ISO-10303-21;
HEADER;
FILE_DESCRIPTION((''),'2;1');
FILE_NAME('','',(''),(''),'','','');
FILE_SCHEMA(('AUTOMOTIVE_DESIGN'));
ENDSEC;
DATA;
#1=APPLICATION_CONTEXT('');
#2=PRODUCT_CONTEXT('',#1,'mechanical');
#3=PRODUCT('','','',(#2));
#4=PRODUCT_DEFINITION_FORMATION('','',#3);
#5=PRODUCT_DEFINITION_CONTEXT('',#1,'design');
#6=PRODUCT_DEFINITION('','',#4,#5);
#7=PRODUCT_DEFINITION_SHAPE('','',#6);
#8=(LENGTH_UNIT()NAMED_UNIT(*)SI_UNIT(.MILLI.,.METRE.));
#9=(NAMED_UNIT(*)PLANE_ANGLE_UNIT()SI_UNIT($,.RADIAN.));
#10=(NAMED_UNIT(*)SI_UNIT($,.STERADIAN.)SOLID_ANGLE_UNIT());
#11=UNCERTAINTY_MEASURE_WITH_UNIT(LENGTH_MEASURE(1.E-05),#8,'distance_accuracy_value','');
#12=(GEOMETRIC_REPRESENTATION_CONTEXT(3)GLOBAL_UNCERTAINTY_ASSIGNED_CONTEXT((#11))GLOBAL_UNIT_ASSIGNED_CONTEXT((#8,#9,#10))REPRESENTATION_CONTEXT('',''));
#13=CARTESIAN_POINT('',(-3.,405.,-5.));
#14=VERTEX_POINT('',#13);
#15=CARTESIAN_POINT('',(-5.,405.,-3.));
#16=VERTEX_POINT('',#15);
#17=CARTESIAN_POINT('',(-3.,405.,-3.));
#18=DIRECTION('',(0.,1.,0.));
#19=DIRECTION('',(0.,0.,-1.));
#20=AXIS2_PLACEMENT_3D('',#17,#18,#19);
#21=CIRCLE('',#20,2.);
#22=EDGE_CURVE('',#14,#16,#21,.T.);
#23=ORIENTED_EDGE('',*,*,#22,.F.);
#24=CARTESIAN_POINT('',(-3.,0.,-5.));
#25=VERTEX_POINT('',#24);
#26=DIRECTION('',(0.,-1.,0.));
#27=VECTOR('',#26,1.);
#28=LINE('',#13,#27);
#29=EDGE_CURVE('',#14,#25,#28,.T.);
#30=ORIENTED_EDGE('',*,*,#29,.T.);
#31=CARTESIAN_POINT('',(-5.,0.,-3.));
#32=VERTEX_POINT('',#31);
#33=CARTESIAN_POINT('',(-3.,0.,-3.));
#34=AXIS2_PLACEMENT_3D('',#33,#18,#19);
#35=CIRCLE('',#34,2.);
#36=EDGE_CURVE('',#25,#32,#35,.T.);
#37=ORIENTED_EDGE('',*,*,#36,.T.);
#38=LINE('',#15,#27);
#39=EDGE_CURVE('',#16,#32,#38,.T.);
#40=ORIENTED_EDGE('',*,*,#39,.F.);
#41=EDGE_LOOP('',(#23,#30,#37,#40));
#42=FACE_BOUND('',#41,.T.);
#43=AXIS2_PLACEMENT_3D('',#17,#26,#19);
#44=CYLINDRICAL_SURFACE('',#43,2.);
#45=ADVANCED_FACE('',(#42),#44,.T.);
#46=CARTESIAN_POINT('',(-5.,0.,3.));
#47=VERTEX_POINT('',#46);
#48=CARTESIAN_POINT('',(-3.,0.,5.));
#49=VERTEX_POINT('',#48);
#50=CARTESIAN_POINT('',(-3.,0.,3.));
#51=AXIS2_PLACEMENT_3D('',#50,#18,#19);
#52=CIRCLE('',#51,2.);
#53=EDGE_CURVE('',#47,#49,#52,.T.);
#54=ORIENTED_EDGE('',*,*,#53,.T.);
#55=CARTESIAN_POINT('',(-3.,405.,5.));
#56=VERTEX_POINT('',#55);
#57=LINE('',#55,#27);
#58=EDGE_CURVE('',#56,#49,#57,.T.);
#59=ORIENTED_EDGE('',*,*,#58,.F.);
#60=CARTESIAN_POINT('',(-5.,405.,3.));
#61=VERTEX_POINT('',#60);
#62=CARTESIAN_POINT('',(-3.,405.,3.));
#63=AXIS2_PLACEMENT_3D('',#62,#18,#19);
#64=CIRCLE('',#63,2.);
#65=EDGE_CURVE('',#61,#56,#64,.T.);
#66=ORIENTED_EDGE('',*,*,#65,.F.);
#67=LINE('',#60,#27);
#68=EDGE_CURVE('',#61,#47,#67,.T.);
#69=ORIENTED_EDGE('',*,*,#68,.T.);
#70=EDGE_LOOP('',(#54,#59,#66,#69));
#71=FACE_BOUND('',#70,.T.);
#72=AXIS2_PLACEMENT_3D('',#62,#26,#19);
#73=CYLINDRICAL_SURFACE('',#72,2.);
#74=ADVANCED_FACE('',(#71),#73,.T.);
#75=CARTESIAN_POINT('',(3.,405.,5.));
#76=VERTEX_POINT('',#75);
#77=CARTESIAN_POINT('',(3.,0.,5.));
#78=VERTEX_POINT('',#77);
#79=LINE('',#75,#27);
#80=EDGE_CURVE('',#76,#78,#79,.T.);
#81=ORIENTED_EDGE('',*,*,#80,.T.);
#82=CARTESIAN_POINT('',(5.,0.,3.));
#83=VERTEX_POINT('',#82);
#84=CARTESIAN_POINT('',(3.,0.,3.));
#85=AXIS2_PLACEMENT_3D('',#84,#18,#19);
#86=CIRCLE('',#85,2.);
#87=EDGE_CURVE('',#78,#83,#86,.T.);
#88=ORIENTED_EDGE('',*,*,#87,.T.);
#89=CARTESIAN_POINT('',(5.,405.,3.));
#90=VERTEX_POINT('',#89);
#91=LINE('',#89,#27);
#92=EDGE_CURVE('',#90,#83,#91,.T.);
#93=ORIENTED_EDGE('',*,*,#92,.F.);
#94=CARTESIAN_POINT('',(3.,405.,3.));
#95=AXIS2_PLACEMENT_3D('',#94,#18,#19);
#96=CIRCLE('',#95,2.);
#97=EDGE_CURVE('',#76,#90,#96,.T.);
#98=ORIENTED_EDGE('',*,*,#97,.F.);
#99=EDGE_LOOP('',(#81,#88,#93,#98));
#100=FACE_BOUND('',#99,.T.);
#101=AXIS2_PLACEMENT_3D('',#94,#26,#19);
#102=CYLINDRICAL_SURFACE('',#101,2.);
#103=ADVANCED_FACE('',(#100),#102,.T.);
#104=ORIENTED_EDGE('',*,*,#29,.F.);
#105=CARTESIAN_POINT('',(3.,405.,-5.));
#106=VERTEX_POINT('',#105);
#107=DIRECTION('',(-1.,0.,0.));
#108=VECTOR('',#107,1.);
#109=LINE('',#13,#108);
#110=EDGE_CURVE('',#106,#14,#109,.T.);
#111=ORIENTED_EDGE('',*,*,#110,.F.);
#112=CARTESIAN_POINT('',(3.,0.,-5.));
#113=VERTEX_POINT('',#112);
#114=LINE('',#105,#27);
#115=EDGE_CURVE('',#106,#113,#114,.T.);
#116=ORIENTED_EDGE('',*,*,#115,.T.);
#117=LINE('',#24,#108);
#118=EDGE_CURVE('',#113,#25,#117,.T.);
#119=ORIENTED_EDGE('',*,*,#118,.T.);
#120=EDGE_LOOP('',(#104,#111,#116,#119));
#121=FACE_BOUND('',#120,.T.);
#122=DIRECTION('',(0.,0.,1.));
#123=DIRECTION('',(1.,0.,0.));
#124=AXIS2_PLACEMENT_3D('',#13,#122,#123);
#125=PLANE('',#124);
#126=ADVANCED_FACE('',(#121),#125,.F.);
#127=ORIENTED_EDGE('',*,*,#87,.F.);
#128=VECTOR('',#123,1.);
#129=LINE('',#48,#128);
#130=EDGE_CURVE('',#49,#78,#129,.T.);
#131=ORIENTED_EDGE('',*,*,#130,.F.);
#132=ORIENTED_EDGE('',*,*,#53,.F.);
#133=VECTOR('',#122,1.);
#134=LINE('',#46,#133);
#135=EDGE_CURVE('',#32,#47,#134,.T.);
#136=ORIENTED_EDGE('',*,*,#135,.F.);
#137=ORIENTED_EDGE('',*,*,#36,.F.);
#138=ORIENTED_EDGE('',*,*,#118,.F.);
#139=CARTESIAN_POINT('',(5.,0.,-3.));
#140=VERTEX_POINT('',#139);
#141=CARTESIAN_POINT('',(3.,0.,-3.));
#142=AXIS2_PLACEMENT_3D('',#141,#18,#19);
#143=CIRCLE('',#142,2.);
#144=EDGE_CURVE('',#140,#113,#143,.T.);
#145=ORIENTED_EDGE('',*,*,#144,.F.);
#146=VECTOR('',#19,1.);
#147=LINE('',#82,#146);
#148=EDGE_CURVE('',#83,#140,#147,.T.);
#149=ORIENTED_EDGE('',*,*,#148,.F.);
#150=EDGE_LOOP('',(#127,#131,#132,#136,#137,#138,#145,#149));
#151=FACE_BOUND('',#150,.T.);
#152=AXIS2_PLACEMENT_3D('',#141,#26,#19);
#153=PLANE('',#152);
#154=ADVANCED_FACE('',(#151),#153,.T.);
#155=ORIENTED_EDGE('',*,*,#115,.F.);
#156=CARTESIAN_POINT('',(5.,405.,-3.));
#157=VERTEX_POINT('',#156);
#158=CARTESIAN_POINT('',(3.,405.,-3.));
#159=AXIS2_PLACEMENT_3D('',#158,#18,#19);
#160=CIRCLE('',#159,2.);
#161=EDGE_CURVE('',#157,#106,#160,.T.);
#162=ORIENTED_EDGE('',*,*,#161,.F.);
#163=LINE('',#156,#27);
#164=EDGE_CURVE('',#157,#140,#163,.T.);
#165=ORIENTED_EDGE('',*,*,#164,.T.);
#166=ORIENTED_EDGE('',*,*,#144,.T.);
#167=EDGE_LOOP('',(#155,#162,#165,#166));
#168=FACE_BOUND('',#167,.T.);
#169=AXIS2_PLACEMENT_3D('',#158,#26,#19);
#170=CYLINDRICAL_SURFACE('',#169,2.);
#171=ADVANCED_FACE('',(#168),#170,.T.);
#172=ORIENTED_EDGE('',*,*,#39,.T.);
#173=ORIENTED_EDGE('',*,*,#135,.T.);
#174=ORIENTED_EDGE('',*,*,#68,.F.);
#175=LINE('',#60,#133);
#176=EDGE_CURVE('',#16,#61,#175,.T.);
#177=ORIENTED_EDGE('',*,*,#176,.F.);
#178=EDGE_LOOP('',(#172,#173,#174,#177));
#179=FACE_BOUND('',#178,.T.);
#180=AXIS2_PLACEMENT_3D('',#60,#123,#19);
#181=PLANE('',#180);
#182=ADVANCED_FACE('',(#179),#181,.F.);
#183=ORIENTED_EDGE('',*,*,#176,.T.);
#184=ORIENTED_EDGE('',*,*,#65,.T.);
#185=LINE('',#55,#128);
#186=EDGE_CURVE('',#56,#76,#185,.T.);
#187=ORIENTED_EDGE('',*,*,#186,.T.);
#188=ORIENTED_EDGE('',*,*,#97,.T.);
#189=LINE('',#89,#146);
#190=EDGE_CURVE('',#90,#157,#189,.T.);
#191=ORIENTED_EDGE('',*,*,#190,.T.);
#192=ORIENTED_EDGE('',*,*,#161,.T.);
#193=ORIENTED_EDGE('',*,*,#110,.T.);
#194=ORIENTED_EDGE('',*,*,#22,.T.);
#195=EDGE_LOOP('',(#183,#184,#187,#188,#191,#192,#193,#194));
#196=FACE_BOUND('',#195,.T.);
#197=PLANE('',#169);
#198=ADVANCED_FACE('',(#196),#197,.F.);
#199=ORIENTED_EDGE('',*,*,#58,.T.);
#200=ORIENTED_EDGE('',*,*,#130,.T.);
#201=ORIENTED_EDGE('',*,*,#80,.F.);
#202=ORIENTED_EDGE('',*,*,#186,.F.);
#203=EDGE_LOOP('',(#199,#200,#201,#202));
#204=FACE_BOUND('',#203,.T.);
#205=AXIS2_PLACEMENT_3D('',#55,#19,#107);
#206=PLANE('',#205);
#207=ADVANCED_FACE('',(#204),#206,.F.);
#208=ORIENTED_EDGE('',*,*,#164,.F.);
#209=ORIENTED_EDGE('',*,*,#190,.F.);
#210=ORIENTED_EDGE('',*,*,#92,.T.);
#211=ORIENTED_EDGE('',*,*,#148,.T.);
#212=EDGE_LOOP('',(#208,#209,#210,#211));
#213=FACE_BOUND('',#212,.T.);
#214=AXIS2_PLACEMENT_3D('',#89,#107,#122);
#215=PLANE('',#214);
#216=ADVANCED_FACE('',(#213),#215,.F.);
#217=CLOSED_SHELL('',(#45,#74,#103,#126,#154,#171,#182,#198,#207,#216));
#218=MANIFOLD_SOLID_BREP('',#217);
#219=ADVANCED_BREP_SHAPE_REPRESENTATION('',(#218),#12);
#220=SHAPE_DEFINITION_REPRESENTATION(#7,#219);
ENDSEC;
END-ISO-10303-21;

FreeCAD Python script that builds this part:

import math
import FreeCAD as App
import Part
import Sketcher
from FreeCAD import Vector
Q = App.Units.Quantity

doc = App.newDocument("Part")
params = doc.addObject("Spreadsheet::Sheet", "Params")
for row, (alias, value) in enumerate([
    ("sketch1_radius", "2 mm"),
    ("sketch1_width", "6 mm"),
    ("pad1_length", "405 mm"),
], start=1):
    params.set(f"A{row}", alias)
    params.set(f"B{row}", "=" + value)
    params.setAlias(f"B{row}", alias)

body = doc.addObject("PartDesign::Body", "Body")

# Sketch on XZ plane
sketch1 = doc.addObject("Sketcher::SketchObject", "Sketch")
body.addObject(sketch1)
sketch1.AttachmentSupport = (doc.XZ_Plane, [""])
sketch1.MapMode = "FlatFace"
sketch1.addGeometry([
    Part.LineSegment(Vector(-3, 5, 0), Vector(3, 5, 0)),  # 0
    Part.ArcOfCircle(Part.Circle(Vector(3, 3, 0), Vector(0, 0, 1), 2), math.radians(0), math.radians(90)),  # 1
    Part.LineSegment(Vector(5, 3, 0), Vector(5, -3, 0)),  # 2
    Part.ArcOfCircle(Part.Circle(Vector(3, -3, 0), Vector(0, 0, 1), 2), math.radians(-90), math.radians(0)),  # 3
    Part.LineSegment(Vector(3, -5, 0), Vector(-3, -5, 0)),  # 4
    Part.ArcOfCircle(Part.Circle(Vector(-3, -3, 0), Vector(0, 0, 1), 2), math.radians(-180), math.radians(-90)),  # 5
    Part.LineSegment(Vector(-5, -3, 0), Vector(-5, 3, 0)),  # 6
    Part.ArcOfCircle(Part.Circle(Vector(-3, 3, 0), Vector(0, 0, 1), 2), math.radians(90), math.radians(180)),  # 7
], False)
sketch1.addConstraint([
    Sketcher.Constraint("Tangent", 0, 2, 1, 2),
    Sketcher.Constraint("Tangent", 1, 1, 2, 1),
    Sketcher.Constraint("Tangent", 2, 2, 3, 2),
    Sketcher.Constraint("Tangent", 3, 1, 4, 1),
    Sketcher.Constraint("Tangent", 4, 2, 5, 2),
    Sketcher.Constraint("Tangent", 5, 1, 6, 1),
    Sketcher.Constraint("Tangent", 6, 2, 7, 2),
    Sketcher.Constraint("Tangent", 7, 1, 0, 1),
    Sketcher.Constraint("Horizontal", 0),
    Sketcher.Constraint("Vertical", 2),
    Sketcher.Constraint("Horizontal", 4),
    Sketcher.Constraint("Vertical", 6),
    Sketcher.Constraint("Equal", 1, 3),
    Sketcher.Constraint("Equal", 3, 5),
    Sketcher.Constraint("Equal", 5, 7),
    Sketcher.Constraint("Symmetric", 1, 3, 5, 3, -1, 1),
    Sketcher.Constraint("Equal", 4, 2),
    Sketcher.Constraint("Radius", 1, Q("2 mm")),
    Sketcher.Constraint("DistanceX", 0, 1, 0, 2, Q("6 mm")),
])
sketch1.setExpression("Constraints[17]", "Params.sketch1_radius")
sketch1.setExpression("Constraints[18]", "Params.sketch1_width")
pad1 = doc.addObject("PartDesign::Pad", "Pad")
body.addObject(pad1)
pad1.Profile = sketch1
pad1.setExpression("Length", "Params.pad1_length")
pad1.Reversed = True

doc.recompute()
